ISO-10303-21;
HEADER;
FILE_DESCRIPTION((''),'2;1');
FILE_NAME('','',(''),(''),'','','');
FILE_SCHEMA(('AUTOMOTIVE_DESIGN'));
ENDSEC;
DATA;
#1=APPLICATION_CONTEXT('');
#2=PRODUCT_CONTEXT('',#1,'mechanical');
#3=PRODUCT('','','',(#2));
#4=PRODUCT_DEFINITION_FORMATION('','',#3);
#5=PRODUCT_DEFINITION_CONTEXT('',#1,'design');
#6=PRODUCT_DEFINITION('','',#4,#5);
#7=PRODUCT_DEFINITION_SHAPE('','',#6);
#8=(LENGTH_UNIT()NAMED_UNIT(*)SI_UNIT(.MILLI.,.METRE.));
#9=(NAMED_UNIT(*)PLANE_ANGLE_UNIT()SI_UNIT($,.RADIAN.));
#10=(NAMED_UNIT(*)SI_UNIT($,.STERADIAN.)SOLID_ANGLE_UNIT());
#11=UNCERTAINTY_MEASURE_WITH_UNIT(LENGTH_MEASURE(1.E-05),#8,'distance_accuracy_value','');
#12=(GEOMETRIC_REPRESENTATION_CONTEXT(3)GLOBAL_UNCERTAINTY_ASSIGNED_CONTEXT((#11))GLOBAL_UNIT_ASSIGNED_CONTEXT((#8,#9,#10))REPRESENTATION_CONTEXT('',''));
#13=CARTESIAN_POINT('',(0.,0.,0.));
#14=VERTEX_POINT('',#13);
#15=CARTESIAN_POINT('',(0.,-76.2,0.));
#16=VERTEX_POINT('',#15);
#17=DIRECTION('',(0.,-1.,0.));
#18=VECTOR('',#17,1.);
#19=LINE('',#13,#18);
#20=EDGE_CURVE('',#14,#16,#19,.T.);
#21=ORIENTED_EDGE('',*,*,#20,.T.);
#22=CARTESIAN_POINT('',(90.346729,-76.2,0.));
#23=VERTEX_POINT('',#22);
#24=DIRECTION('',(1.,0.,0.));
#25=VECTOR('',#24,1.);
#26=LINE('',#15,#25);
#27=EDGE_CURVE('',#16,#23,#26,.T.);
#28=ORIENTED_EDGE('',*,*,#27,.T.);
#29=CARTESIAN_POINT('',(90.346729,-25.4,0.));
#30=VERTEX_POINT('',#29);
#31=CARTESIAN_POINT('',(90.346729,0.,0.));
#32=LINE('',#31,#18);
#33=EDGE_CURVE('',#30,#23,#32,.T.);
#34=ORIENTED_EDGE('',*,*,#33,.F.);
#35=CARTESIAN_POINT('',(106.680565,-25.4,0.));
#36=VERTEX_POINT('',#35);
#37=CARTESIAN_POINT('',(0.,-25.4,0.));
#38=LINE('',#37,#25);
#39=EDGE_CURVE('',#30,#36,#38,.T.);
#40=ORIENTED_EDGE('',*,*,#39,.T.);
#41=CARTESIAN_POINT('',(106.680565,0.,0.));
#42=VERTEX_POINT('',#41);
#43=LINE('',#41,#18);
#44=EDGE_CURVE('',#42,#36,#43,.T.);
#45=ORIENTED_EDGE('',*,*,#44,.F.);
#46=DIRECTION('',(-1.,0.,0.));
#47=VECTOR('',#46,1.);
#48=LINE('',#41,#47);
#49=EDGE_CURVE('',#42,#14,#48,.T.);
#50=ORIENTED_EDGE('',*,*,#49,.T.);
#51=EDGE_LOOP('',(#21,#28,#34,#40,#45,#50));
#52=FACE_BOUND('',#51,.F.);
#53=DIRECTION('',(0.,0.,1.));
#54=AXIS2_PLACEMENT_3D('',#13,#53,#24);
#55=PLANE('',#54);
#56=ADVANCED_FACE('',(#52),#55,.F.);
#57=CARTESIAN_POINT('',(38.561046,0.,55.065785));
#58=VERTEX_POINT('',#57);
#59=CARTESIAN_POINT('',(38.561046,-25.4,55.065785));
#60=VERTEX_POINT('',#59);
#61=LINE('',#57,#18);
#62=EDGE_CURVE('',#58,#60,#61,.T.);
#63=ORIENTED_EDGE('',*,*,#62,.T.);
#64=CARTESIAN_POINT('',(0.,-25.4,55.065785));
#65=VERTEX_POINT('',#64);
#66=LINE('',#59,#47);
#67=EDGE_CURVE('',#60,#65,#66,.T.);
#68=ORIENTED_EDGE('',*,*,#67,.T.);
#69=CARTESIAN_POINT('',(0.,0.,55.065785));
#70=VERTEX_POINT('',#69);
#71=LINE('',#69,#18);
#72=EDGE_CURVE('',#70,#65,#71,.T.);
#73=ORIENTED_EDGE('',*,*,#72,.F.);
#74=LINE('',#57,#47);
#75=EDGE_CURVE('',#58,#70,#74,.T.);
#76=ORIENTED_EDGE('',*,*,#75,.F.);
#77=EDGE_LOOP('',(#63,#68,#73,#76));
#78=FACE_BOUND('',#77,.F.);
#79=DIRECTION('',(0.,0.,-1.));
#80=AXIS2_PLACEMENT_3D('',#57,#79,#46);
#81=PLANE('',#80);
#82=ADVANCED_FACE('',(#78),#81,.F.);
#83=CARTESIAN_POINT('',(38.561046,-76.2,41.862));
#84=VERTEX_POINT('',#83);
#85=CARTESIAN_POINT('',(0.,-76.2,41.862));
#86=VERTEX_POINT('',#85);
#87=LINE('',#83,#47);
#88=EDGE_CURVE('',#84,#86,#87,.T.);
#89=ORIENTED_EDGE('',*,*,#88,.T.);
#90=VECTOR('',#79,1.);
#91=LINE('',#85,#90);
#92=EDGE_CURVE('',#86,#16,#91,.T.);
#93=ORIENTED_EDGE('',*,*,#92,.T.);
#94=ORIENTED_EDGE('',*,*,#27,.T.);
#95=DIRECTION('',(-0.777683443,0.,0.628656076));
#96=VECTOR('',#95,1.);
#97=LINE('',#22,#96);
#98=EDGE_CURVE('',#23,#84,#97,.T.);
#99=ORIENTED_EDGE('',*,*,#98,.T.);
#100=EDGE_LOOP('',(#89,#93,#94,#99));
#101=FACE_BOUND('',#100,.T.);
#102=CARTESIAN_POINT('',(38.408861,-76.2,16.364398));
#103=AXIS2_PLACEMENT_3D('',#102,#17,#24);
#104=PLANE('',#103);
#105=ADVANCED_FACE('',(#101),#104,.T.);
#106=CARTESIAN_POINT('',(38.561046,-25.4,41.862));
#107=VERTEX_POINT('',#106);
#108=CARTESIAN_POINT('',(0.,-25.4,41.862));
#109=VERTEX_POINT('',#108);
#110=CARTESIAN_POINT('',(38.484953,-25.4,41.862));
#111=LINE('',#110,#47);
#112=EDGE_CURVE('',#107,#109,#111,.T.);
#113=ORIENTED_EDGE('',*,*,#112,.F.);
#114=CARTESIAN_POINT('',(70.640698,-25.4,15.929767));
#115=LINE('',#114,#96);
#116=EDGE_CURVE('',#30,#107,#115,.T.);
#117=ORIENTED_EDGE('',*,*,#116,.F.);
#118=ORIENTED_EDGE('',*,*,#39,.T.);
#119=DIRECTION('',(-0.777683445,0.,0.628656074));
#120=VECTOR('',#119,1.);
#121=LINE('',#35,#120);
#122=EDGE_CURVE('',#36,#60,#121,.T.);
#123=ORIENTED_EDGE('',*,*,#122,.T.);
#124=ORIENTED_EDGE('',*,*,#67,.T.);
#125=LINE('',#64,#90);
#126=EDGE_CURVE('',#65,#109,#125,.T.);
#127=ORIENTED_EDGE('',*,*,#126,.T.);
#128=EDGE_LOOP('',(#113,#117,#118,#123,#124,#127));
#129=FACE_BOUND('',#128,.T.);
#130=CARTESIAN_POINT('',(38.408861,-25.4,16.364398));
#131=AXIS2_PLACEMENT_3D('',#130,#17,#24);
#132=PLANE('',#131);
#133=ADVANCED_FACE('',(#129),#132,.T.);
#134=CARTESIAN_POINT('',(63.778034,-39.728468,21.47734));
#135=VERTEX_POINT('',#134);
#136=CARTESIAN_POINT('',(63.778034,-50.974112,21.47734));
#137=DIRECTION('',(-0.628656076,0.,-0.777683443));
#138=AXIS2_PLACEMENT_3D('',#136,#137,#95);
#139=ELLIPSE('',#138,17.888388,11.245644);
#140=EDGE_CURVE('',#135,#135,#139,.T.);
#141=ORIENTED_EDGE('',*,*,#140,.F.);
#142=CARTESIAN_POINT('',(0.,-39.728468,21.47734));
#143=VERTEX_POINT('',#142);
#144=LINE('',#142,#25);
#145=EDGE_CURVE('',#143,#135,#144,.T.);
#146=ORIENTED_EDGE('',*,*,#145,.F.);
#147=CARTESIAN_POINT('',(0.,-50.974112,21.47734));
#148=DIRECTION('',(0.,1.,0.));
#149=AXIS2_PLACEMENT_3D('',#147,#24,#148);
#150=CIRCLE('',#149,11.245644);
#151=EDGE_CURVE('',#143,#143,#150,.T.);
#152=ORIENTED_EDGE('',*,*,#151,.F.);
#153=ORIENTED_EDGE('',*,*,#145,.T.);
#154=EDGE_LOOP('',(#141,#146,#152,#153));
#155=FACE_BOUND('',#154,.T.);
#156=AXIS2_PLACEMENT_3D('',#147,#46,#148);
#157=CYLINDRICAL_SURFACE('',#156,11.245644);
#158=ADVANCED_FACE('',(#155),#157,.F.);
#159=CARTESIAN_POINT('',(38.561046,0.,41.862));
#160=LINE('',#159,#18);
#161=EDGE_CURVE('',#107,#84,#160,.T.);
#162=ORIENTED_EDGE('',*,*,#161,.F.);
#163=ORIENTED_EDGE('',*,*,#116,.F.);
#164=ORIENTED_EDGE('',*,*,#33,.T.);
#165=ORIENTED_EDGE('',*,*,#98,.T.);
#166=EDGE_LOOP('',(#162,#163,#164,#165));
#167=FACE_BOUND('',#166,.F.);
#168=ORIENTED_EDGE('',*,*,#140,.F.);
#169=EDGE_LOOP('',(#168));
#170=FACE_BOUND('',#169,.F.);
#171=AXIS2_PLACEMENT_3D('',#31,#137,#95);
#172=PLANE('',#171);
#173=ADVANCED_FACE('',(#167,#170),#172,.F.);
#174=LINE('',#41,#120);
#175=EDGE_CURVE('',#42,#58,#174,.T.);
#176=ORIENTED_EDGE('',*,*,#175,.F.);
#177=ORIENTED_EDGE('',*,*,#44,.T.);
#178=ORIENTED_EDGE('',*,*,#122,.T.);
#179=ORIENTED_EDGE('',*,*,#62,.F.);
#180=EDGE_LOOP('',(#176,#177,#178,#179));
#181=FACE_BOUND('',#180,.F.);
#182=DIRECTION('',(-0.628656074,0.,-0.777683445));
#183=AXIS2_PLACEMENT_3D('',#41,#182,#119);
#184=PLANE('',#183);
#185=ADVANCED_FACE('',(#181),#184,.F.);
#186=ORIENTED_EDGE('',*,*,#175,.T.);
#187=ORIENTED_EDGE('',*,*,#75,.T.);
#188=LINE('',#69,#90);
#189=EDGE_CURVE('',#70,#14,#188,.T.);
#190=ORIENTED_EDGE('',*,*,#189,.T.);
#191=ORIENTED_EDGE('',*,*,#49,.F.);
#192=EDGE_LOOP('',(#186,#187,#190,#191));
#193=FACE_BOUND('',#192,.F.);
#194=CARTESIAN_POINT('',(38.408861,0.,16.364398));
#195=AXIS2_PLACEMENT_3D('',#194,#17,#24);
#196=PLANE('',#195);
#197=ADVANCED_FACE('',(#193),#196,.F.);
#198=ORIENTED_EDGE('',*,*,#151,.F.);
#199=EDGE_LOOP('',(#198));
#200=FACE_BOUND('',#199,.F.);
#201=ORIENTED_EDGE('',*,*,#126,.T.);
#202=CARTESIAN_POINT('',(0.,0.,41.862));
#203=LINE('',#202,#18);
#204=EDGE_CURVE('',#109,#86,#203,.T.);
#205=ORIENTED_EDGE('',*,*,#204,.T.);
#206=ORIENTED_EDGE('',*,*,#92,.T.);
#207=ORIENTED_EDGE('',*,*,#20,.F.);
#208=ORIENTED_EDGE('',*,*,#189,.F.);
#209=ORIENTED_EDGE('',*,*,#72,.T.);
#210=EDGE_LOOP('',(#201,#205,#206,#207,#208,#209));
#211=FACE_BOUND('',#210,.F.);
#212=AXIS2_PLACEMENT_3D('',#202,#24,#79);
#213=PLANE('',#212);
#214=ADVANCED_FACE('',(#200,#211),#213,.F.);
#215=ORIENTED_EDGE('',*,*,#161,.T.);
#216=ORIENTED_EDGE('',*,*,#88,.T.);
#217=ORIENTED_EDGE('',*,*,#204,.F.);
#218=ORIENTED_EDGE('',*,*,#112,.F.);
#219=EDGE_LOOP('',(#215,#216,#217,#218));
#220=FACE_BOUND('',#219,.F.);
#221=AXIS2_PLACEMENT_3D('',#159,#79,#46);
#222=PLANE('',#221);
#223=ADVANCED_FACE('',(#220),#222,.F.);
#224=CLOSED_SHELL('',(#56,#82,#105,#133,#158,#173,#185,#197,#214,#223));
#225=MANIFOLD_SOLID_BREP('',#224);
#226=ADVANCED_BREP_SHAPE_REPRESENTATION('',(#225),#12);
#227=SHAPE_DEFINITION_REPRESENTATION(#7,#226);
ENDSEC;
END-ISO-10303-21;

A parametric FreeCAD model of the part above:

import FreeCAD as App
import Part
import Sketcher

V = App.Vector
Q = App.Units.Quantity

doc = App.newDocument("Part")
params = doc.addObject("Spreadsheet::Sheet", "Params")
for row, (alias, value) in enumerate([
    ("pad1_length", "3 in"),
    ("pad2_length", "1 in"),
    ("pocket1_length", "6 in"),
], start=1):
    params.set(f"A{row}", alias)
    params.set(f"B{row}", "=" + value)
    params.setAlias(f"B{row}", alias)

body = doc.addObject("PartDesign::Body", "Body")

# Sketch on XZ plane
sketch1 = body.newObject("Sketcher::SketchObject", "Sketch")
sketch1.AttachmentSupport = (doc.getObject("XZ_Plane"), [""])
sketch1.MapMode = "FlatFace"
sketch1.addGeometry([
    Part.LineSegment(V(0, 42, 0), V(0, 0, 0)),
    Part.LineSegment(V(0, 0, 0), V(90, 0, 0)),
    Part.LineSegment(V(90, 0, 0), V(39, 42, 0)),
    Part.LineSegment(V(39, 42, 0), V(0, 42, 0)),
], False)
sketch1.addConstraint([
    Sketcher.Constraint("Coincident", 0, 2, 1, 1),
    Sketcher.Constraint("Coincident", 1, 2, 2, 1),
    Sketcher.Constraint("Coincident", 2, 2, 3, 1),
    Sketcher.Constraint("Coincident", 3, 2, 0, 1),
    Sketcher.Constraint("Vertical", 0),
    Sketcher.Constraint("Horizontal", 1),
    Sketcher.Constraint("Horizontal", 3),
    Sketcher.Constraint("Coincident", 0, 2, -1, 1),
    Sketcher.Constraint("DistanceY", 0, 2, 0, 1, Q("41.862 mm")),
    Sketcher.Constraint("DistanceX", 1, 1, 1, 2, Q("90.346729 mm")),
    Sketcher.Constraint("Distance", 2, Q("66.589669 mm")),
])
pad1 = body.newObject("PartDesign::Pad", "Pad")
pad1.Profile = sketch1
pad1.setExpression("Length", "Params.pad1_length")

# Sketch on XZ plane
sketch2 = body.newObject("Sketcher::SketchObject", "Sketch001")
sketch2.AttachmentSupport = (doc.getObject("XZ_Plane"), [""])
sketch2.MapMode = "FlatFace"
sketch2.addGeometry([
    Part.LineSegment(V(0, 0, 0), V(107, 0, 0)),
    Part.LineSegment(V(107, 0, 0), V(39, 55, 0)),
    Part.LineSegment(V(39, 55, 0), V(0, 55, 0)),
    Part.LineSegment(V(0, 55, 0), V(0, 0, 0)),
], False)
sketch2.addConstraint([
    Sketcher.Constraint("Coincident", 0, 2, 1, 1),
    Sketcher.Constraint("Coincident", 1, 2, 2, 1),
    Sketcher.Constraint("Coincident", 2, 2, 3, 1),
    Sketcher.Constraint("Coincident", 3, 2, 0, 1),
    Sketcher.Constraint("Horizontal", 0),
    Sketcher.Constraint("Horizontal", 2),
    Sketcher.Constraint("Vertical", 3),
    Sketcher.Constraint("Coincident", 3, 2, -1, 1),
    Sketcher.Constraint("DistanceX", 0, 1, 0, 2, Q("106.680565 mm")),
    Sketcher.Constraint("DistanceX", 2, 2, 2, 1, Q("38.561046 mm")),
    Sketcher.Constraint("DistanceY", 3, 2, 3, 1, Q("55.065785 mm")),
])
pad2 = body.newObject("PartDesign::Pad", "Pad001")
pad2.Profile = sketch2
pad2.setExpression("Length", "Params.pad2_length")

# Sketch on YZ plane
sketch3 = body.newObject("Sketcher::SketchObject", "Sketch002")
sketch3.AttachmentSupport = (doc.getObject("YZ_Plane"), [""])
sketch3.MapMode = "FlatFace"
sketch3.addGeometry(Part.Circle(V(-51, 21, 0), V(0, 0, 1), 11), False)
sketch3.addConstraint([
    Sketcher.Constraint("Diameter", 0, Q("22.491288 mm")),
    Sketcher.Constraint("DistanceX", 0, 3, -1, 1, Q("50.974112 mm")),
    Sketcher.Constraint("DistanceY", -1, 1, 0, 3, Q("21.47734 mm")),
])
pocket1 = body.newObject("PartDesign::Pocket", "Pocket")
pocket1.Profile = sketch3
pocket1.setExpression("Length", "Params.pocket1_length")
pocket1.Reversed = True

doc.recompute()
